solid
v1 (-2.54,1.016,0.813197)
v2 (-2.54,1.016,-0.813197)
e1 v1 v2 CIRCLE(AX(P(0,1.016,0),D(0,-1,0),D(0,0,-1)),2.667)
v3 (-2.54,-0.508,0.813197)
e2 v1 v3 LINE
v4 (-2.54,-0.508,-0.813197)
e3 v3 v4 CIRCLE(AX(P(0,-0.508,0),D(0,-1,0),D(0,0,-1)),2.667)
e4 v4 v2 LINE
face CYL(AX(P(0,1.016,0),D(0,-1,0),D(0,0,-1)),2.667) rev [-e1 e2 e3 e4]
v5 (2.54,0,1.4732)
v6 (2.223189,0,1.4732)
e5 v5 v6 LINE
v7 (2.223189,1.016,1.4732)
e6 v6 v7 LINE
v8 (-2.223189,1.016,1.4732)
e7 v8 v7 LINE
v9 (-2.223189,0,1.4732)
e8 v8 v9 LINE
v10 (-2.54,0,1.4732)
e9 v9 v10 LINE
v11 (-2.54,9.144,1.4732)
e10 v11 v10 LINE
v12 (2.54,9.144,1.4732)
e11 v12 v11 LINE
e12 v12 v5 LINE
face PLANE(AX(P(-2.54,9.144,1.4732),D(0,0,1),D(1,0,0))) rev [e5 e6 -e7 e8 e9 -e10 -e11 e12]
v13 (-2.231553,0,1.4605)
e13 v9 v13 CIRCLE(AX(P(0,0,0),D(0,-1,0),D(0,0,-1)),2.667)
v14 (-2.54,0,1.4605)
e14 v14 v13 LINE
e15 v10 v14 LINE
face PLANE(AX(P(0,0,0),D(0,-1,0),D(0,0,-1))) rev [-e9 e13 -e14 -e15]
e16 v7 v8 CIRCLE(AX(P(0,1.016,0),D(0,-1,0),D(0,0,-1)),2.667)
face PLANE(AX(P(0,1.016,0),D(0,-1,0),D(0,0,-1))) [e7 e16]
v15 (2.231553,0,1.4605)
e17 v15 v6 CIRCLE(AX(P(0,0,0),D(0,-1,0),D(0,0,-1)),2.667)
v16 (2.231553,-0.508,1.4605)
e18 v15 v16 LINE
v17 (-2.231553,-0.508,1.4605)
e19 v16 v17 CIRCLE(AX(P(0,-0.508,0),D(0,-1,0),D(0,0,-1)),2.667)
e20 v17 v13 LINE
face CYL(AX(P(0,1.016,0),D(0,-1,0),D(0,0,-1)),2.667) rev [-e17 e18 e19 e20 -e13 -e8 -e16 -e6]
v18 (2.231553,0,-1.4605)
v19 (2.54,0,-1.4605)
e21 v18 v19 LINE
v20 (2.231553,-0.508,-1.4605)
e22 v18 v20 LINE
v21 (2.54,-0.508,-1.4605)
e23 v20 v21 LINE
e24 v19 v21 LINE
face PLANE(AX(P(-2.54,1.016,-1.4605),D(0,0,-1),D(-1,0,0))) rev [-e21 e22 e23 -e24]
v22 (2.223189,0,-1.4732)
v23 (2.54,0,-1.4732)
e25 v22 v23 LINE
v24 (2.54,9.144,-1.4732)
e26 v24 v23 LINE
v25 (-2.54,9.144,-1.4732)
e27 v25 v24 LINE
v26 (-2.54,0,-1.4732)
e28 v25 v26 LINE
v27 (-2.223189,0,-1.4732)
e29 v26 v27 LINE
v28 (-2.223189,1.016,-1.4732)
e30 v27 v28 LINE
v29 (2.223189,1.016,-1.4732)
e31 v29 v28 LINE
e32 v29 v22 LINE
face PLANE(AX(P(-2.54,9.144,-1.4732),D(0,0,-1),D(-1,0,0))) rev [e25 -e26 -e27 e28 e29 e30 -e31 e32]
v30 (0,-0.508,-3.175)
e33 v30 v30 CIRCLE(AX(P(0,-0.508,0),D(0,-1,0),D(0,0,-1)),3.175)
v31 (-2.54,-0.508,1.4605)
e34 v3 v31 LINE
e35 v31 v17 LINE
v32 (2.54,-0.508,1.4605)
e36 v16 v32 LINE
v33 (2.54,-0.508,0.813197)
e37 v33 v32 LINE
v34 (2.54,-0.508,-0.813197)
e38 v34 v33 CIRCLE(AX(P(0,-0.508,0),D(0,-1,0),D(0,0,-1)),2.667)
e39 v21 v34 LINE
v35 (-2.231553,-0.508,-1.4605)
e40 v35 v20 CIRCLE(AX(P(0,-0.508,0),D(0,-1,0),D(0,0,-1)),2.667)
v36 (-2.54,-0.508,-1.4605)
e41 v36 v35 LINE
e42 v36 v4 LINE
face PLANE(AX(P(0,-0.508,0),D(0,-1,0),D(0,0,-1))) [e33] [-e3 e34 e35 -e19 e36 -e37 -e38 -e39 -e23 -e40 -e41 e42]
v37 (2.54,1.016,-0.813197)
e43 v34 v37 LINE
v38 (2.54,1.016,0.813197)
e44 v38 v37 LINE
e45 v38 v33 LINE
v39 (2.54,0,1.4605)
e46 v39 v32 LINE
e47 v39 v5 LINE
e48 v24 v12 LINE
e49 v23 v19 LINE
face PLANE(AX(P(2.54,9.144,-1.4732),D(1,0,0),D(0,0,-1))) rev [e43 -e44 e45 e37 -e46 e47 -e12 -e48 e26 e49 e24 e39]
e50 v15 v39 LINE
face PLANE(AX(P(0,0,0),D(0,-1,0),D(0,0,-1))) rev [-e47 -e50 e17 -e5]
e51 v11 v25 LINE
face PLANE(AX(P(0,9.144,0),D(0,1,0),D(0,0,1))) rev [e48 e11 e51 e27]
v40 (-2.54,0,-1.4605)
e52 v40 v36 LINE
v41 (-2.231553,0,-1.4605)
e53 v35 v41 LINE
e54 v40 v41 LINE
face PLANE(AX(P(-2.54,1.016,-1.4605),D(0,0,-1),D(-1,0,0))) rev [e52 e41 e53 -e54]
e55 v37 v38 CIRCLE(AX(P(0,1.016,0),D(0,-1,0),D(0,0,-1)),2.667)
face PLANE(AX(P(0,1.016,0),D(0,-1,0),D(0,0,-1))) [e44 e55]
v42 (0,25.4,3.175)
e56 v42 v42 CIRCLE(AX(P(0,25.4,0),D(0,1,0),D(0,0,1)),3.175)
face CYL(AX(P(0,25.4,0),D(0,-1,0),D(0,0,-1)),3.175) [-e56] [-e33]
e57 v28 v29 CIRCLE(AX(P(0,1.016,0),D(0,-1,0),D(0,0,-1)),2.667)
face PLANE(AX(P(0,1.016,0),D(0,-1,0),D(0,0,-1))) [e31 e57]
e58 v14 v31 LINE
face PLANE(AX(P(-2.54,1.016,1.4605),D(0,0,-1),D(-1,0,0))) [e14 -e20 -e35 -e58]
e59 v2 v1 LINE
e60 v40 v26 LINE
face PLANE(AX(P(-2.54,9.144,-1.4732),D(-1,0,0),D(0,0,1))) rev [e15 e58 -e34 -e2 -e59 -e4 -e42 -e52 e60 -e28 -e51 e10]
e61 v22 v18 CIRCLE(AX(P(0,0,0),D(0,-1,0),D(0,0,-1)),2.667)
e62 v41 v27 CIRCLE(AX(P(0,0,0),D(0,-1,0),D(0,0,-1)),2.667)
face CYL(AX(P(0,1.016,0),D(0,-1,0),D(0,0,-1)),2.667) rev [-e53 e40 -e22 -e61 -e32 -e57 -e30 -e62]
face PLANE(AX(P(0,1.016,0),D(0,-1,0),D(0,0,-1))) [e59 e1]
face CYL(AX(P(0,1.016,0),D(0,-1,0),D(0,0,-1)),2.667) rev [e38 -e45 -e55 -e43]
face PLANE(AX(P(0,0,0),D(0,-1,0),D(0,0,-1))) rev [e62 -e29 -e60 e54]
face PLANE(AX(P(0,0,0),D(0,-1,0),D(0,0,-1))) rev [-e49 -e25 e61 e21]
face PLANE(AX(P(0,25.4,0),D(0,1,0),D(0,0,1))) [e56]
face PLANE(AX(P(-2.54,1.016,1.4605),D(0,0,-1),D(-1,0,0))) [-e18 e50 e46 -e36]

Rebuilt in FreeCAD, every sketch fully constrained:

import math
import FreeCAD as App
import Part
import Sketcher
Q = App.Units.Quantity


def add_polygon(sketch, points):
    """Adds a closed chain of lines whose ends are joined by coincident constraints."""
    first, n = sketch.GeometryCount, len(points)
    for a, b in zip(points, points[1:] + points[:1]):
        sketch.addGeometry(Part.LineSegment(App.Vector(*a, 0), App.Vector(*b, 0)), False)
    for i in range(n):
        sketch.addConstraint(Sketcher.Constraint("Coincident", first + i, 2, first + (i + 1) % n, 1))

doc = App.newDocument("Part")
body = doc.addObject("PartDesign::Body", "Body")

sketch1 = body.newObject("Sketcher::SketchObject", "Sketch")
sketch1.AttachmentSupport = (doc.getObject("XZ_Plane"), [""])
sketch1.MapMode = "FlatFace"
sketch1.addGeometry(Part.Circle(App.Vector(0, 0, 0), App.Vector(0, 0, 1), 3.2), False)
sketch1.addConstraint(Sketcher.Constraint("Coincident", 0, 3, -1, 1))
sketch1.addConstraint(Sketcher.Constraint("Diameter", 0, Q("0.25 in")))
pad1 = body.newObject("PartDesign::Pad", "Pad")
pad1.Profile = sketch1
pad1.Length = Q("1 in")
pad1.Reversed = True

sketch2 = body.newObject("Sketcher::SketchObject", "Sketch001")
sketch2.AttachmentSupport = (doc.getObject("XZ_Plane"), [""])
sketch2.MapMode = "FlatFace"
add_polygon(sketch2, [(-2.5, 1.5), (-2.5, -1.5), (2.5, -1.5), (2.5, 1.5)])
sketch2.addConstraint(Sketcher.Constraint("Vertical", 0))
sketch2.addConstraint(Sketcher.Constraint("Horizontal", 1))
sketch2.addConstraint(Sketcher.Constraint("Vertical", 2))
sketch2.addConstraint(Sketcher.Constraint("Horizontal", 3))
sketch2.addConstraint(Sketcher.Constraint("Symmetric", 0, 2, 2, 2, -1, 1))
sketch2.addConstraint(Sketcher.Constraint("DistanceX", 1, 1, 1, 2, Q("0.2 in")))
sketch2.addConstraint(Sketcher.Constraint("DistanceY", 0, 2, 0, 1, Q("0.116 in")))
pocket1 = body.newObject("PartDesign::Pocket", "Pocket")
pocket1.Profile = sketch2
pocket1.Length = Q("0.36 in")

sketch3 = body.newObject("Sketcher::SketchObject", "Sketch002")
sketch3.AttachmentSupport = (doc.getObject("XZ_Plane"), [""])
sketch3.MapMode = "FlatFace"
sketch3.AttachmentOffset = App.Placement(App.Vector(0, 0, 0.02 * 25.4), App.Rotation())
sketch3.addGeometry(Part.Circle(App.Vector(0, 0, 0), App.Vector(0, 0, 1), 3.2), False)
sketch3.addConstraint(Sketcher.Constraint("Coincident", 0, 3, -1, 1))
sketch3.addConstraint(Sketcher.Constraint("Diameter", 0, Q("0.25 in")))
pad2 = body.newObject("PartDesign::Pad", "Pad001")
pad2.Profile = sketch3
pad2.Length = Q("0.02 in")
pad2.Reversed = True

sketch4 = body.newObject("Sketcher::SketchObject", "Sketch003")
sketch4.AttachmentSupport = (doc.getObject("XZ_Plane"), [""])
sketch4.MapMode = "FlatFace"
sketch4.AttachmentOffset = App.Placement(App.Vector(0, 0, 0.02 * 25.4), App.Rotation())
sketch4.addGeometry(Part.ArcOfCircle(Part.Circle(App.Vector(0, 0, 0), App.Vector(0, 0, 1), 2.67), math.radians(-18), math.radians(18)), False)
sketch4.addGeometry(Part.LineSegment(App.Vector(2.54, 0.81, 0), App.Vector(2.54, 1.46, 0)), False)
sketch4.addGeometry(Part.LineSegment(App.Vector(2.54, 1.46, 0), App.Vector(2.23, 1.46, 0)), False)
sketch4.addGeometry(Part.ArcOfCircle(Part.Circle(App.Vector(0, 0, 0), App.Vector(0, 0, 1), 2.67), math.radians(33), math.radians(147)), False)
sketch4.addGeometry(Part.LineSegment(App.Vector(-2.23, 1.46, 0), App.Vector(-2.54, 1.46, 0)), False)
sketch4.addGeometry(Part.LineSegment(App.Vector(-2.54, 1.46, 0), App.Vector(-2.54, 0.81, 0)), False)
sketch4.addGeometry(Part.ArcOfCircle(Part.Circle(App.Vector(0, 0, 0), App.Vector(0, 0, 1), 2.67), math.radians(162), math.radians(198)), False)
sketch4.addGeometry(Part.LineSegment(App.Vector(-2.54, -0.81, 0), App.Vector(-2.54, -1.46, 0)), False)
sketch4.addGeometry(Part.LineSegment(App.Vector(-2.54, -1.46, 0), App.Vector(-2.23, -1.46, 0)), False)
sketch4.addGeometry(Part.ArcOfCircle(Part.Circle(App.Vector(0, 0, 0), App.Vector(0, 0, 1), 2.67), math.radians(-147), math.radians(-33)), False)
sketch4.addGeometry(Part.LineSegment(App.Vector(2.23, -1.46, 0), App.Vector(2.54, -1.46, 0)), False)
sketch4.addGeometry(Part.LineSegment(App.Vector(2.54, -1.46, 0), App.Vector(2.54, -0.81, 0)), False)
sketch4.addConstraint(Sketcher.Constraint("Coincident", 0, 2, 1, 1))
sketch4.addConstraint(Sketcher.Constraint("Coincident", 1, 2, 2, 1))
sketch4.addConstraint(Sketcher.Constraint("Coincident", 2, 2, 3, 1))
sketch4.addConstraint(Sketcher.Constraint("Coincident", 3, 2, 4, 1))
sketch4.addConstraint(Sketcher.Constraint("Coincident", 4, 2, 5, 1))
sketch4.addConstraint(Sketcher.Constraint("Coincident", 5, 2, 6, 1))
sketch4.addConstraint(Sketcher.Constraint("Coincident", 6, 2, 7, 1))
sketch4.addConstraint(Sketcher.Constraint("Coincident", 7, 2, 8, 1))
sketch4.addConstraint(Sketcher.Constraint("Coincident", 8, 2, 9, 1))
sketch4.addConstraint(Sketcher.Constraint("Coincident", 9, 2, 10, 1))
sketch4.addConstraint(Sketcher.Constraint("Coincident", 10, 2, 11, 1))
sketch4.addConstraint(Sketcher.Constraint("Coincident", 11, 2, 0, 1))
sketch4.addConstraint(Sketcher.Constraint("Vertical", 1))
sketch4.addConstraint(Sketcher.Constraint("Horizontal", 2))
sketch4.addConstraint(Sketcher.Constraint("Horizontal", 4))
sketch4.addConstraint(Sketcher.Constraint("Vertical", 5))
sketch4.addConstraint(Sketcher.Constraint("Vertical", 7))
sketch4.addConstraint(Sketcher.Constraint("Horizontal", 8))
sketch4.addConstraint(Sketcher.Constraint("Horizontal", 10))
sketch4.addConstraint(Sketcher.Constraint("Vertical", 11))
sketch4.addConstraint(Sketcher.Constraint("Coincident", 0, 3, -1, 1))
sketch4.addConstraint(Sketcher.Constraint("Coincident", 3, 3, -1, 1))
sketch4.addConstraint(Sketcher.Constraint("Coincident", 6, 3, -1, 1))
sketch4.addConstraint(Sketcher.Constraint("Coincident", 9, 3, -1, 1))
sketch4.addConstraint(Sketcher.Constraint("Equal", 0, 3))
sketch4.addConstraint(Sketcher.Constraint("Equal", 3, 6))
sketch4.addConstraint(Sketcher.Constraint("Equal", 6, 9))
sketch4.addConstraint(Sketcher.Constraint("Symmetric", 1, 2, 7, 2, -1, 1))
sketch4.addConstraint(Sketcher.Constraint("Symmetric", 4, 2, 10, 2, -1, 1))
sketch4.addConstraint(Sketcher.Constraint("Symmetric", 1, 2, 4, 2, -2))
sketch4.addConstraint(Sketcher.Constraint("Radius", 0, Q("0.105 in")))
sketch4.addConstraint(Sketcher.Constraint("DistanceX", -1, 1, 0, 2, Q("0.1 in")))
sketch4.addConstraint(Sketcher.Constraint("DistanceY", 7, 2, 4, 2, Q("0.115 in")))
pocket2 = body.newObject("PartDesign::Pocket", "Pocket001")
pocket2.Profile = sketch4
pocket2.Length = Q("0.06 in")

doc.recompute()
